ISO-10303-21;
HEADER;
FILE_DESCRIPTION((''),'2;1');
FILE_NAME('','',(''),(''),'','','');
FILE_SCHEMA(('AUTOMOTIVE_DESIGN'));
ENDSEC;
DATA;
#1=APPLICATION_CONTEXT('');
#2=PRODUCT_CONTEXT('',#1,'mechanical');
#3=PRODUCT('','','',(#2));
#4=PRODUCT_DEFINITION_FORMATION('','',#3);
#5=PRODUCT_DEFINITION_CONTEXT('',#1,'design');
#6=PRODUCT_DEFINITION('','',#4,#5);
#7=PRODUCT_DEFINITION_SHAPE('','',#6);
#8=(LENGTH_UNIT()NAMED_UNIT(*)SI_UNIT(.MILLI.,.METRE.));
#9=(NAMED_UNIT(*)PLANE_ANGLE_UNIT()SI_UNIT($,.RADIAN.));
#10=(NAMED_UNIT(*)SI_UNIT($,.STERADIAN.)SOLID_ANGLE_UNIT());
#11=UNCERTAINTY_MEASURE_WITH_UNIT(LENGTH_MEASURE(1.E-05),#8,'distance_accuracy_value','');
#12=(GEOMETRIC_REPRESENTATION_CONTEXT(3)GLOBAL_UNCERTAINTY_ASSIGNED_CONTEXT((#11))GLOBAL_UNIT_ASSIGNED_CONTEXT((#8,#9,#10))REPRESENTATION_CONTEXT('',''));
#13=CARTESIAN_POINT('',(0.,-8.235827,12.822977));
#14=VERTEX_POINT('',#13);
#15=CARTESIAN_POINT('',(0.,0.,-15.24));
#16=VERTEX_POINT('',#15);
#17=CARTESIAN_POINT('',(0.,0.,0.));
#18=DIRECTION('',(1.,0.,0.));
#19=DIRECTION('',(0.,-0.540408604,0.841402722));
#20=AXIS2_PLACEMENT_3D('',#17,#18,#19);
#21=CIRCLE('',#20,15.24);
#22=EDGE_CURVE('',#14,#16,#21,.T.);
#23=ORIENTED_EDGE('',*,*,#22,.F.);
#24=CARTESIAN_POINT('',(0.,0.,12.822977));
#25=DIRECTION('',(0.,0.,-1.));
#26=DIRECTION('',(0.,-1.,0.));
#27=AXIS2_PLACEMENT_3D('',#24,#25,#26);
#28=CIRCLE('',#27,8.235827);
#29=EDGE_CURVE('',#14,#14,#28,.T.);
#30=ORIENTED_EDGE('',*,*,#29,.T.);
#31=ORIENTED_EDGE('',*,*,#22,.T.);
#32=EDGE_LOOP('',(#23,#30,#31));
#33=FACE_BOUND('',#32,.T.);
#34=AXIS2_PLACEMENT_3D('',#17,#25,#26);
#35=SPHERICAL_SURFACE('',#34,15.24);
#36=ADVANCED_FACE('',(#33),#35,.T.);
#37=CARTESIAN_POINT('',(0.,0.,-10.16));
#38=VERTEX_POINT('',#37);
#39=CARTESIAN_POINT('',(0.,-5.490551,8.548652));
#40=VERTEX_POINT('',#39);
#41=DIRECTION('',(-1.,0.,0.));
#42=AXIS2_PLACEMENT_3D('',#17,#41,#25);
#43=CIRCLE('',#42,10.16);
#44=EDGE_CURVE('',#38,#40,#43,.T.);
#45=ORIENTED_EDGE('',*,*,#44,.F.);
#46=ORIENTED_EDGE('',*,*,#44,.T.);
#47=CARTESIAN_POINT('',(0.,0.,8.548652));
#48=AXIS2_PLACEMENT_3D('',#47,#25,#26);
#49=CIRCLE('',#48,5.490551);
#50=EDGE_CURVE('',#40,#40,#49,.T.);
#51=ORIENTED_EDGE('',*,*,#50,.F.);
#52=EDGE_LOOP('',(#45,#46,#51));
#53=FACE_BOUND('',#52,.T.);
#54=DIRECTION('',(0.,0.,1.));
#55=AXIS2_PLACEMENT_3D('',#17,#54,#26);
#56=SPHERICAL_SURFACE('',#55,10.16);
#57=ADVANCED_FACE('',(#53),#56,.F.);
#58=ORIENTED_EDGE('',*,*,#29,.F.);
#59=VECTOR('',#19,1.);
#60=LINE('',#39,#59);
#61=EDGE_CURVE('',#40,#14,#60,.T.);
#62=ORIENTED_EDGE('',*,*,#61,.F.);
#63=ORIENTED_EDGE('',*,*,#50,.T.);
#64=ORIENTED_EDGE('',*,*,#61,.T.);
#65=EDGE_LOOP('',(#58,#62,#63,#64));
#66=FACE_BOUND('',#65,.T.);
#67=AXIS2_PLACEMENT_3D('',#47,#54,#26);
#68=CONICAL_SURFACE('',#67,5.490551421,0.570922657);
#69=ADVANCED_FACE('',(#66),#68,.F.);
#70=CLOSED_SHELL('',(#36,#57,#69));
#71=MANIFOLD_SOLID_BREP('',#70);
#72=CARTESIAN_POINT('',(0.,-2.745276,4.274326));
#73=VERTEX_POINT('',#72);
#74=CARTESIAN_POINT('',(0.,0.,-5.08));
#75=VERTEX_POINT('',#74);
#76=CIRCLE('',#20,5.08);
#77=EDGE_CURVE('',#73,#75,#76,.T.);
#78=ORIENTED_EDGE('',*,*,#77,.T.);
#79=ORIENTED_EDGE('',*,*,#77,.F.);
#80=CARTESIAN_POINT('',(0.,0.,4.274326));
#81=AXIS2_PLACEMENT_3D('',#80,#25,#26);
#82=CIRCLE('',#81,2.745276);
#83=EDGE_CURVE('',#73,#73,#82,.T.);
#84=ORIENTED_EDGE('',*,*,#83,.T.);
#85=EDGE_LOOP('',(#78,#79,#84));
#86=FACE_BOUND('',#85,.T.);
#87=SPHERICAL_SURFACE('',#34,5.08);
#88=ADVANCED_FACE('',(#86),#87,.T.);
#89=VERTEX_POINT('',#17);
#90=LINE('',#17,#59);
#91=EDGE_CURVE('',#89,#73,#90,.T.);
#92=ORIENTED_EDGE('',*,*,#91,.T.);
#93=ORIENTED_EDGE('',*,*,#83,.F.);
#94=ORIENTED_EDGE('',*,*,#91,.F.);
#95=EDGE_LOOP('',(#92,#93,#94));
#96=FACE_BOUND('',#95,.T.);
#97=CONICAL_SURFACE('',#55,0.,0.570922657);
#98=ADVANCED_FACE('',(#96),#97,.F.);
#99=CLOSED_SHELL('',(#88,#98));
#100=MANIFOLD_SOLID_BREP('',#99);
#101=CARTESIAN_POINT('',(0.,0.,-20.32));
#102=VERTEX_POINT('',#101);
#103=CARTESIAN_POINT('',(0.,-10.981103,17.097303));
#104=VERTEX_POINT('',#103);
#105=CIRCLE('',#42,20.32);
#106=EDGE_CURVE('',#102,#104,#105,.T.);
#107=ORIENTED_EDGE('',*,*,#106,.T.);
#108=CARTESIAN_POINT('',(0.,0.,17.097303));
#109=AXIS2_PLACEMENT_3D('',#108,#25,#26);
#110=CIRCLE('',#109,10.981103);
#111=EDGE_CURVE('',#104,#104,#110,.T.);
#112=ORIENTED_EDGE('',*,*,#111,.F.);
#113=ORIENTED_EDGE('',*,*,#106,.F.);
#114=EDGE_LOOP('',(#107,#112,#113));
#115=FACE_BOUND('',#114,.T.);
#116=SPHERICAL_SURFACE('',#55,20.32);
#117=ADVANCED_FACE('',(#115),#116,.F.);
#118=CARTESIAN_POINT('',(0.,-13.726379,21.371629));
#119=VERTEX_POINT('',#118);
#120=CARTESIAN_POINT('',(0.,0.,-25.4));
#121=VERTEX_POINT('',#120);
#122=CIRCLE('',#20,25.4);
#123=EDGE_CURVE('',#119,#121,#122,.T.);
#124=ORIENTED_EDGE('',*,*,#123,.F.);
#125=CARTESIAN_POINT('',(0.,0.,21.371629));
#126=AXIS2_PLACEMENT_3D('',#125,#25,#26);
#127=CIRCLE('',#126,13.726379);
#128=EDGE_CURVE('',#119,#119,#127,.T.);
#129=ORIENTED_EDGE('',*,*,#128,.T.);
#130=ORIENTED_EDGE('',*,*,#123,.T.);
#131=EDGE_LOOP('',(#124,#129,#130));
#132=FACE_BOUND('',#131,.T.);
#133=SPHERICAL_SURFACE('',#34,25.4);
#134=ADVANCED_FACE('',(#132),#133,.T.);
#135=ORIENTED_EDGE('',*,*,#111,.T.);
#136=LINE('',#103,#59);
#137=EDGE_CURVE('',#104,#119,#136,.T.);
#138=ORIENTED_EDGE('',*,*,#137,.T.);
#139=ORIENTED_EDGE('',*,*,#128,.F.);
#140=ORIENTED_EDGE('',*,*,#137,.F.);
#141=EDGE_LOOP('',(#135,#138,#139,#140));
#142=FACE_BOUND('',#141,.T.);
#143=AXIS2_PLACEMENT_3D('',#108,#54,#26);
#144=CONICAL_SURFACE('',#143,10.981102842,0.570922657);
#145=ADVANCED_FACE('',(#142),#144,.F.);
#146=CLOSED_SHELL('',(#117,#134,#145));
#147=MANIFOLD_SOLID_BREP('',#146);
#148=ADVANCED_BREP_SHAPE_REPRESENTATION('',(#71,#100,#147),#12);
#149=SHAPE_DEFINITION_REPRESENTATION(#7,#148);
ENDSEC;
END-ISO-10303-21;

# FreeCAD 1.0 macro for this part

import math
import FreeCAD as App
import Part
import Sketcher
from FreeCAD import Vector
Q = App.Units.Quantity

doc = App.newDocument("Part")
body = doc.addObject("PartDesign::Body", "Body")

# Sketch on YZ plane
sketch1 = body.newObject("Sketcher::SketchObject", "Sketch")
sketch1.AttachmentSupport = (doc.getObject("YZ_Plane"), [""])
sketch1.MapMode = "FlatFace"
sketch1.addGeometry([
    Part.ArcOfCircle(Part.Circle(Vector(0, 0, 0), Vector(0, 0, 1), 5), math.radians(123), math.radians(270)),
    Part.LineSegment(Vector(0, -5, 0), Vector(0, 0, 0)),
    Part.LineSegment(Vector(0, 0, 0), Vector(-3, 4, 0)),
], False)
sketch1.addConstraint([
    Sketcher.Constraint("Coincident", 0, 2, 1, 1),
    Sketcher.Constraint("Coincident", 1, 2, 2, 1),
    Sketcher.Constraint("Coincident", 2, 2, 0, 1),
    Sketcher.Constraint("Vertical", 1),
    Sketcher.Constraint("Coincident", 0, 3, -1, 1),
    Sketcher.Constraint("Coincident", 1, 2, -1, 1),
    Sketcher.Constraint("Radius", 0, Q("0.2 in")),
    Sketcher.Constraint("DistanceX", 2, 2, -1, 1, Q("2.745276 mm")),
])
revolution = body.newObject("PartDesign::Revolution", "Revolution")
revolution.Profile = sketch1
revolution.ReferenceAxis = (sketch1, ["V_Axis"])
revolution.Angle = 360
body2 = doc.addObject("PartDesign::Body", "Body001")

# Sketch on YZ plane
sketch2 = body2.newObject("Sketcher::SketchObject", "Sketch001")
sketch2.AttachmentSupport = (doc.getObject("YZ_Plane001"), [""])
sketch2.MapMode = "FlatFace"
sketch2.addGeometry([
    Part.ArcOfCircle(Part.Circle(Vector(0, 0, 0), Vector(0, 0, 1), 15), math.radians(123), math.radians(270)),
    Part.LineSegment(Vector(0, -15, 0), Vector(0, -10, 0)),
    Part.ArcOfCircle(Part.Circle(Vector(0, 0, 0), Vector(0, 0, 1), 10), math.radians(123), math.radians(270)),
    Part.LineSegment(Vector(-5, 9, 0), Vector(-8, 13, 0)),
], False)
sketch2.addConstraint([
    Sketcher.Constraint("Coincident", 0, 2, 1, 1),
    Sketcher.Constraint("Coincident", 1, 2, 2, 2),
    Sketcher.Constraint("Coincident", 2, 1, 3, 1),
    Sketcher.Constraint("Coincident", 3, 2, 0, 1),
    Sketcher.Constraint("Vertical", 1),
    Sketcher.Constraint("Coincident", 0, 3, -1, 1),
    Sketcher.Constraint("Coincident", 2, 3, -1, 1),
    Sketcher.Constraint("PointOnObject", 0, 2, -2),
    Sketcher.Constraint("Radius", 0, Q("0.6 in")),
    Sketcher.Constraint("Radius", 2, Q("0.4 in")),
    Sketcher.Constraint("DistanceX", 2, 1, -1, 1, Q("5.490551 mm")),
    Sketcher.Constraint("DistanceX", 3, 2, -1, 1, Q("8.235827 mm")),
])
revolution2 = body2.newObject("PartDesign::Revolution", "Revolution001")
revolution2.Profile = sketch2
revolution2.ReferenceAxis = (sketch2, ["V_Axis"])
revolution2.Angle = 360
body3 = doc.addObject("PartDesign::Body", "Body002")

# Sketch on YZ plane
sketch3 = body3.newObject("Sketcher::SketchObject", "Sketch002")
sketch3.AttachmentSupport = (doc.getObject("YZ_Plane002"), [""])
sketch3.MapMode = "FlatFace"
sketch3.addGeometry([
    Part.LineSegment(Vector(0, -25, 0), Vector(0, -20, 0)),
    Part.ArcOfCircle(Part.Circle(Vector(0, 0, 0), Vector(0, 0, 1), 20), math.radians(123), math.radians(270)),
    Part.LineSegment(Vector(-11, 17, 0), Vector(-14, 21, 0)),
    Part.ArcOfCircle(Part.Circle(Vector(0, 0, 0), Vector(0, 0, 1), 25), math.radians(123), math.radians(270)),
], False)
sketch3.addConstraint([
    Sketcher.Constraint("Coincident", 0, 2, 1, 2),
    Sketcher.Constraint("Coincident", 1, 1, 2, 1),
    Sketcher.Constraint("Coincident", 2, 2, 3, 1),
    Sketcher.Constraint("Coincident", 3, 2, 0, 1),
    Sketcher.Constraint("Vertical", 0),
    Sketcher.Constraint("Coincident", 1, 3, -1, 1),
    Sketcher.Constraint("Coincident", 3, 3, -1, 1),
    Sketcher.Constraint("PointOnObject", 0, 2, -2),
    Sketcher.Constraint("Radius", 3, Q("1 in")),
    Sketcher.Constraint("Radius", 1, Q("0.8 in")),
    Sketcher.Constraint("DistanceX", 2, 2, -1, 1, Q("13.726379 mm")),
    Sketcher.Constraint("DistanceX", 1, 1, -1, 1, Q("10.981103 mm")),
])
revolution3 = body3.newObject("PartDesign::Revolution", "Revolution002")
revolution3.Profile = sketch3
revolution3.ReferenceAxis = (sketch3, ["V_Axis"])
revolution3.Angle = 360

doc.recompute()
